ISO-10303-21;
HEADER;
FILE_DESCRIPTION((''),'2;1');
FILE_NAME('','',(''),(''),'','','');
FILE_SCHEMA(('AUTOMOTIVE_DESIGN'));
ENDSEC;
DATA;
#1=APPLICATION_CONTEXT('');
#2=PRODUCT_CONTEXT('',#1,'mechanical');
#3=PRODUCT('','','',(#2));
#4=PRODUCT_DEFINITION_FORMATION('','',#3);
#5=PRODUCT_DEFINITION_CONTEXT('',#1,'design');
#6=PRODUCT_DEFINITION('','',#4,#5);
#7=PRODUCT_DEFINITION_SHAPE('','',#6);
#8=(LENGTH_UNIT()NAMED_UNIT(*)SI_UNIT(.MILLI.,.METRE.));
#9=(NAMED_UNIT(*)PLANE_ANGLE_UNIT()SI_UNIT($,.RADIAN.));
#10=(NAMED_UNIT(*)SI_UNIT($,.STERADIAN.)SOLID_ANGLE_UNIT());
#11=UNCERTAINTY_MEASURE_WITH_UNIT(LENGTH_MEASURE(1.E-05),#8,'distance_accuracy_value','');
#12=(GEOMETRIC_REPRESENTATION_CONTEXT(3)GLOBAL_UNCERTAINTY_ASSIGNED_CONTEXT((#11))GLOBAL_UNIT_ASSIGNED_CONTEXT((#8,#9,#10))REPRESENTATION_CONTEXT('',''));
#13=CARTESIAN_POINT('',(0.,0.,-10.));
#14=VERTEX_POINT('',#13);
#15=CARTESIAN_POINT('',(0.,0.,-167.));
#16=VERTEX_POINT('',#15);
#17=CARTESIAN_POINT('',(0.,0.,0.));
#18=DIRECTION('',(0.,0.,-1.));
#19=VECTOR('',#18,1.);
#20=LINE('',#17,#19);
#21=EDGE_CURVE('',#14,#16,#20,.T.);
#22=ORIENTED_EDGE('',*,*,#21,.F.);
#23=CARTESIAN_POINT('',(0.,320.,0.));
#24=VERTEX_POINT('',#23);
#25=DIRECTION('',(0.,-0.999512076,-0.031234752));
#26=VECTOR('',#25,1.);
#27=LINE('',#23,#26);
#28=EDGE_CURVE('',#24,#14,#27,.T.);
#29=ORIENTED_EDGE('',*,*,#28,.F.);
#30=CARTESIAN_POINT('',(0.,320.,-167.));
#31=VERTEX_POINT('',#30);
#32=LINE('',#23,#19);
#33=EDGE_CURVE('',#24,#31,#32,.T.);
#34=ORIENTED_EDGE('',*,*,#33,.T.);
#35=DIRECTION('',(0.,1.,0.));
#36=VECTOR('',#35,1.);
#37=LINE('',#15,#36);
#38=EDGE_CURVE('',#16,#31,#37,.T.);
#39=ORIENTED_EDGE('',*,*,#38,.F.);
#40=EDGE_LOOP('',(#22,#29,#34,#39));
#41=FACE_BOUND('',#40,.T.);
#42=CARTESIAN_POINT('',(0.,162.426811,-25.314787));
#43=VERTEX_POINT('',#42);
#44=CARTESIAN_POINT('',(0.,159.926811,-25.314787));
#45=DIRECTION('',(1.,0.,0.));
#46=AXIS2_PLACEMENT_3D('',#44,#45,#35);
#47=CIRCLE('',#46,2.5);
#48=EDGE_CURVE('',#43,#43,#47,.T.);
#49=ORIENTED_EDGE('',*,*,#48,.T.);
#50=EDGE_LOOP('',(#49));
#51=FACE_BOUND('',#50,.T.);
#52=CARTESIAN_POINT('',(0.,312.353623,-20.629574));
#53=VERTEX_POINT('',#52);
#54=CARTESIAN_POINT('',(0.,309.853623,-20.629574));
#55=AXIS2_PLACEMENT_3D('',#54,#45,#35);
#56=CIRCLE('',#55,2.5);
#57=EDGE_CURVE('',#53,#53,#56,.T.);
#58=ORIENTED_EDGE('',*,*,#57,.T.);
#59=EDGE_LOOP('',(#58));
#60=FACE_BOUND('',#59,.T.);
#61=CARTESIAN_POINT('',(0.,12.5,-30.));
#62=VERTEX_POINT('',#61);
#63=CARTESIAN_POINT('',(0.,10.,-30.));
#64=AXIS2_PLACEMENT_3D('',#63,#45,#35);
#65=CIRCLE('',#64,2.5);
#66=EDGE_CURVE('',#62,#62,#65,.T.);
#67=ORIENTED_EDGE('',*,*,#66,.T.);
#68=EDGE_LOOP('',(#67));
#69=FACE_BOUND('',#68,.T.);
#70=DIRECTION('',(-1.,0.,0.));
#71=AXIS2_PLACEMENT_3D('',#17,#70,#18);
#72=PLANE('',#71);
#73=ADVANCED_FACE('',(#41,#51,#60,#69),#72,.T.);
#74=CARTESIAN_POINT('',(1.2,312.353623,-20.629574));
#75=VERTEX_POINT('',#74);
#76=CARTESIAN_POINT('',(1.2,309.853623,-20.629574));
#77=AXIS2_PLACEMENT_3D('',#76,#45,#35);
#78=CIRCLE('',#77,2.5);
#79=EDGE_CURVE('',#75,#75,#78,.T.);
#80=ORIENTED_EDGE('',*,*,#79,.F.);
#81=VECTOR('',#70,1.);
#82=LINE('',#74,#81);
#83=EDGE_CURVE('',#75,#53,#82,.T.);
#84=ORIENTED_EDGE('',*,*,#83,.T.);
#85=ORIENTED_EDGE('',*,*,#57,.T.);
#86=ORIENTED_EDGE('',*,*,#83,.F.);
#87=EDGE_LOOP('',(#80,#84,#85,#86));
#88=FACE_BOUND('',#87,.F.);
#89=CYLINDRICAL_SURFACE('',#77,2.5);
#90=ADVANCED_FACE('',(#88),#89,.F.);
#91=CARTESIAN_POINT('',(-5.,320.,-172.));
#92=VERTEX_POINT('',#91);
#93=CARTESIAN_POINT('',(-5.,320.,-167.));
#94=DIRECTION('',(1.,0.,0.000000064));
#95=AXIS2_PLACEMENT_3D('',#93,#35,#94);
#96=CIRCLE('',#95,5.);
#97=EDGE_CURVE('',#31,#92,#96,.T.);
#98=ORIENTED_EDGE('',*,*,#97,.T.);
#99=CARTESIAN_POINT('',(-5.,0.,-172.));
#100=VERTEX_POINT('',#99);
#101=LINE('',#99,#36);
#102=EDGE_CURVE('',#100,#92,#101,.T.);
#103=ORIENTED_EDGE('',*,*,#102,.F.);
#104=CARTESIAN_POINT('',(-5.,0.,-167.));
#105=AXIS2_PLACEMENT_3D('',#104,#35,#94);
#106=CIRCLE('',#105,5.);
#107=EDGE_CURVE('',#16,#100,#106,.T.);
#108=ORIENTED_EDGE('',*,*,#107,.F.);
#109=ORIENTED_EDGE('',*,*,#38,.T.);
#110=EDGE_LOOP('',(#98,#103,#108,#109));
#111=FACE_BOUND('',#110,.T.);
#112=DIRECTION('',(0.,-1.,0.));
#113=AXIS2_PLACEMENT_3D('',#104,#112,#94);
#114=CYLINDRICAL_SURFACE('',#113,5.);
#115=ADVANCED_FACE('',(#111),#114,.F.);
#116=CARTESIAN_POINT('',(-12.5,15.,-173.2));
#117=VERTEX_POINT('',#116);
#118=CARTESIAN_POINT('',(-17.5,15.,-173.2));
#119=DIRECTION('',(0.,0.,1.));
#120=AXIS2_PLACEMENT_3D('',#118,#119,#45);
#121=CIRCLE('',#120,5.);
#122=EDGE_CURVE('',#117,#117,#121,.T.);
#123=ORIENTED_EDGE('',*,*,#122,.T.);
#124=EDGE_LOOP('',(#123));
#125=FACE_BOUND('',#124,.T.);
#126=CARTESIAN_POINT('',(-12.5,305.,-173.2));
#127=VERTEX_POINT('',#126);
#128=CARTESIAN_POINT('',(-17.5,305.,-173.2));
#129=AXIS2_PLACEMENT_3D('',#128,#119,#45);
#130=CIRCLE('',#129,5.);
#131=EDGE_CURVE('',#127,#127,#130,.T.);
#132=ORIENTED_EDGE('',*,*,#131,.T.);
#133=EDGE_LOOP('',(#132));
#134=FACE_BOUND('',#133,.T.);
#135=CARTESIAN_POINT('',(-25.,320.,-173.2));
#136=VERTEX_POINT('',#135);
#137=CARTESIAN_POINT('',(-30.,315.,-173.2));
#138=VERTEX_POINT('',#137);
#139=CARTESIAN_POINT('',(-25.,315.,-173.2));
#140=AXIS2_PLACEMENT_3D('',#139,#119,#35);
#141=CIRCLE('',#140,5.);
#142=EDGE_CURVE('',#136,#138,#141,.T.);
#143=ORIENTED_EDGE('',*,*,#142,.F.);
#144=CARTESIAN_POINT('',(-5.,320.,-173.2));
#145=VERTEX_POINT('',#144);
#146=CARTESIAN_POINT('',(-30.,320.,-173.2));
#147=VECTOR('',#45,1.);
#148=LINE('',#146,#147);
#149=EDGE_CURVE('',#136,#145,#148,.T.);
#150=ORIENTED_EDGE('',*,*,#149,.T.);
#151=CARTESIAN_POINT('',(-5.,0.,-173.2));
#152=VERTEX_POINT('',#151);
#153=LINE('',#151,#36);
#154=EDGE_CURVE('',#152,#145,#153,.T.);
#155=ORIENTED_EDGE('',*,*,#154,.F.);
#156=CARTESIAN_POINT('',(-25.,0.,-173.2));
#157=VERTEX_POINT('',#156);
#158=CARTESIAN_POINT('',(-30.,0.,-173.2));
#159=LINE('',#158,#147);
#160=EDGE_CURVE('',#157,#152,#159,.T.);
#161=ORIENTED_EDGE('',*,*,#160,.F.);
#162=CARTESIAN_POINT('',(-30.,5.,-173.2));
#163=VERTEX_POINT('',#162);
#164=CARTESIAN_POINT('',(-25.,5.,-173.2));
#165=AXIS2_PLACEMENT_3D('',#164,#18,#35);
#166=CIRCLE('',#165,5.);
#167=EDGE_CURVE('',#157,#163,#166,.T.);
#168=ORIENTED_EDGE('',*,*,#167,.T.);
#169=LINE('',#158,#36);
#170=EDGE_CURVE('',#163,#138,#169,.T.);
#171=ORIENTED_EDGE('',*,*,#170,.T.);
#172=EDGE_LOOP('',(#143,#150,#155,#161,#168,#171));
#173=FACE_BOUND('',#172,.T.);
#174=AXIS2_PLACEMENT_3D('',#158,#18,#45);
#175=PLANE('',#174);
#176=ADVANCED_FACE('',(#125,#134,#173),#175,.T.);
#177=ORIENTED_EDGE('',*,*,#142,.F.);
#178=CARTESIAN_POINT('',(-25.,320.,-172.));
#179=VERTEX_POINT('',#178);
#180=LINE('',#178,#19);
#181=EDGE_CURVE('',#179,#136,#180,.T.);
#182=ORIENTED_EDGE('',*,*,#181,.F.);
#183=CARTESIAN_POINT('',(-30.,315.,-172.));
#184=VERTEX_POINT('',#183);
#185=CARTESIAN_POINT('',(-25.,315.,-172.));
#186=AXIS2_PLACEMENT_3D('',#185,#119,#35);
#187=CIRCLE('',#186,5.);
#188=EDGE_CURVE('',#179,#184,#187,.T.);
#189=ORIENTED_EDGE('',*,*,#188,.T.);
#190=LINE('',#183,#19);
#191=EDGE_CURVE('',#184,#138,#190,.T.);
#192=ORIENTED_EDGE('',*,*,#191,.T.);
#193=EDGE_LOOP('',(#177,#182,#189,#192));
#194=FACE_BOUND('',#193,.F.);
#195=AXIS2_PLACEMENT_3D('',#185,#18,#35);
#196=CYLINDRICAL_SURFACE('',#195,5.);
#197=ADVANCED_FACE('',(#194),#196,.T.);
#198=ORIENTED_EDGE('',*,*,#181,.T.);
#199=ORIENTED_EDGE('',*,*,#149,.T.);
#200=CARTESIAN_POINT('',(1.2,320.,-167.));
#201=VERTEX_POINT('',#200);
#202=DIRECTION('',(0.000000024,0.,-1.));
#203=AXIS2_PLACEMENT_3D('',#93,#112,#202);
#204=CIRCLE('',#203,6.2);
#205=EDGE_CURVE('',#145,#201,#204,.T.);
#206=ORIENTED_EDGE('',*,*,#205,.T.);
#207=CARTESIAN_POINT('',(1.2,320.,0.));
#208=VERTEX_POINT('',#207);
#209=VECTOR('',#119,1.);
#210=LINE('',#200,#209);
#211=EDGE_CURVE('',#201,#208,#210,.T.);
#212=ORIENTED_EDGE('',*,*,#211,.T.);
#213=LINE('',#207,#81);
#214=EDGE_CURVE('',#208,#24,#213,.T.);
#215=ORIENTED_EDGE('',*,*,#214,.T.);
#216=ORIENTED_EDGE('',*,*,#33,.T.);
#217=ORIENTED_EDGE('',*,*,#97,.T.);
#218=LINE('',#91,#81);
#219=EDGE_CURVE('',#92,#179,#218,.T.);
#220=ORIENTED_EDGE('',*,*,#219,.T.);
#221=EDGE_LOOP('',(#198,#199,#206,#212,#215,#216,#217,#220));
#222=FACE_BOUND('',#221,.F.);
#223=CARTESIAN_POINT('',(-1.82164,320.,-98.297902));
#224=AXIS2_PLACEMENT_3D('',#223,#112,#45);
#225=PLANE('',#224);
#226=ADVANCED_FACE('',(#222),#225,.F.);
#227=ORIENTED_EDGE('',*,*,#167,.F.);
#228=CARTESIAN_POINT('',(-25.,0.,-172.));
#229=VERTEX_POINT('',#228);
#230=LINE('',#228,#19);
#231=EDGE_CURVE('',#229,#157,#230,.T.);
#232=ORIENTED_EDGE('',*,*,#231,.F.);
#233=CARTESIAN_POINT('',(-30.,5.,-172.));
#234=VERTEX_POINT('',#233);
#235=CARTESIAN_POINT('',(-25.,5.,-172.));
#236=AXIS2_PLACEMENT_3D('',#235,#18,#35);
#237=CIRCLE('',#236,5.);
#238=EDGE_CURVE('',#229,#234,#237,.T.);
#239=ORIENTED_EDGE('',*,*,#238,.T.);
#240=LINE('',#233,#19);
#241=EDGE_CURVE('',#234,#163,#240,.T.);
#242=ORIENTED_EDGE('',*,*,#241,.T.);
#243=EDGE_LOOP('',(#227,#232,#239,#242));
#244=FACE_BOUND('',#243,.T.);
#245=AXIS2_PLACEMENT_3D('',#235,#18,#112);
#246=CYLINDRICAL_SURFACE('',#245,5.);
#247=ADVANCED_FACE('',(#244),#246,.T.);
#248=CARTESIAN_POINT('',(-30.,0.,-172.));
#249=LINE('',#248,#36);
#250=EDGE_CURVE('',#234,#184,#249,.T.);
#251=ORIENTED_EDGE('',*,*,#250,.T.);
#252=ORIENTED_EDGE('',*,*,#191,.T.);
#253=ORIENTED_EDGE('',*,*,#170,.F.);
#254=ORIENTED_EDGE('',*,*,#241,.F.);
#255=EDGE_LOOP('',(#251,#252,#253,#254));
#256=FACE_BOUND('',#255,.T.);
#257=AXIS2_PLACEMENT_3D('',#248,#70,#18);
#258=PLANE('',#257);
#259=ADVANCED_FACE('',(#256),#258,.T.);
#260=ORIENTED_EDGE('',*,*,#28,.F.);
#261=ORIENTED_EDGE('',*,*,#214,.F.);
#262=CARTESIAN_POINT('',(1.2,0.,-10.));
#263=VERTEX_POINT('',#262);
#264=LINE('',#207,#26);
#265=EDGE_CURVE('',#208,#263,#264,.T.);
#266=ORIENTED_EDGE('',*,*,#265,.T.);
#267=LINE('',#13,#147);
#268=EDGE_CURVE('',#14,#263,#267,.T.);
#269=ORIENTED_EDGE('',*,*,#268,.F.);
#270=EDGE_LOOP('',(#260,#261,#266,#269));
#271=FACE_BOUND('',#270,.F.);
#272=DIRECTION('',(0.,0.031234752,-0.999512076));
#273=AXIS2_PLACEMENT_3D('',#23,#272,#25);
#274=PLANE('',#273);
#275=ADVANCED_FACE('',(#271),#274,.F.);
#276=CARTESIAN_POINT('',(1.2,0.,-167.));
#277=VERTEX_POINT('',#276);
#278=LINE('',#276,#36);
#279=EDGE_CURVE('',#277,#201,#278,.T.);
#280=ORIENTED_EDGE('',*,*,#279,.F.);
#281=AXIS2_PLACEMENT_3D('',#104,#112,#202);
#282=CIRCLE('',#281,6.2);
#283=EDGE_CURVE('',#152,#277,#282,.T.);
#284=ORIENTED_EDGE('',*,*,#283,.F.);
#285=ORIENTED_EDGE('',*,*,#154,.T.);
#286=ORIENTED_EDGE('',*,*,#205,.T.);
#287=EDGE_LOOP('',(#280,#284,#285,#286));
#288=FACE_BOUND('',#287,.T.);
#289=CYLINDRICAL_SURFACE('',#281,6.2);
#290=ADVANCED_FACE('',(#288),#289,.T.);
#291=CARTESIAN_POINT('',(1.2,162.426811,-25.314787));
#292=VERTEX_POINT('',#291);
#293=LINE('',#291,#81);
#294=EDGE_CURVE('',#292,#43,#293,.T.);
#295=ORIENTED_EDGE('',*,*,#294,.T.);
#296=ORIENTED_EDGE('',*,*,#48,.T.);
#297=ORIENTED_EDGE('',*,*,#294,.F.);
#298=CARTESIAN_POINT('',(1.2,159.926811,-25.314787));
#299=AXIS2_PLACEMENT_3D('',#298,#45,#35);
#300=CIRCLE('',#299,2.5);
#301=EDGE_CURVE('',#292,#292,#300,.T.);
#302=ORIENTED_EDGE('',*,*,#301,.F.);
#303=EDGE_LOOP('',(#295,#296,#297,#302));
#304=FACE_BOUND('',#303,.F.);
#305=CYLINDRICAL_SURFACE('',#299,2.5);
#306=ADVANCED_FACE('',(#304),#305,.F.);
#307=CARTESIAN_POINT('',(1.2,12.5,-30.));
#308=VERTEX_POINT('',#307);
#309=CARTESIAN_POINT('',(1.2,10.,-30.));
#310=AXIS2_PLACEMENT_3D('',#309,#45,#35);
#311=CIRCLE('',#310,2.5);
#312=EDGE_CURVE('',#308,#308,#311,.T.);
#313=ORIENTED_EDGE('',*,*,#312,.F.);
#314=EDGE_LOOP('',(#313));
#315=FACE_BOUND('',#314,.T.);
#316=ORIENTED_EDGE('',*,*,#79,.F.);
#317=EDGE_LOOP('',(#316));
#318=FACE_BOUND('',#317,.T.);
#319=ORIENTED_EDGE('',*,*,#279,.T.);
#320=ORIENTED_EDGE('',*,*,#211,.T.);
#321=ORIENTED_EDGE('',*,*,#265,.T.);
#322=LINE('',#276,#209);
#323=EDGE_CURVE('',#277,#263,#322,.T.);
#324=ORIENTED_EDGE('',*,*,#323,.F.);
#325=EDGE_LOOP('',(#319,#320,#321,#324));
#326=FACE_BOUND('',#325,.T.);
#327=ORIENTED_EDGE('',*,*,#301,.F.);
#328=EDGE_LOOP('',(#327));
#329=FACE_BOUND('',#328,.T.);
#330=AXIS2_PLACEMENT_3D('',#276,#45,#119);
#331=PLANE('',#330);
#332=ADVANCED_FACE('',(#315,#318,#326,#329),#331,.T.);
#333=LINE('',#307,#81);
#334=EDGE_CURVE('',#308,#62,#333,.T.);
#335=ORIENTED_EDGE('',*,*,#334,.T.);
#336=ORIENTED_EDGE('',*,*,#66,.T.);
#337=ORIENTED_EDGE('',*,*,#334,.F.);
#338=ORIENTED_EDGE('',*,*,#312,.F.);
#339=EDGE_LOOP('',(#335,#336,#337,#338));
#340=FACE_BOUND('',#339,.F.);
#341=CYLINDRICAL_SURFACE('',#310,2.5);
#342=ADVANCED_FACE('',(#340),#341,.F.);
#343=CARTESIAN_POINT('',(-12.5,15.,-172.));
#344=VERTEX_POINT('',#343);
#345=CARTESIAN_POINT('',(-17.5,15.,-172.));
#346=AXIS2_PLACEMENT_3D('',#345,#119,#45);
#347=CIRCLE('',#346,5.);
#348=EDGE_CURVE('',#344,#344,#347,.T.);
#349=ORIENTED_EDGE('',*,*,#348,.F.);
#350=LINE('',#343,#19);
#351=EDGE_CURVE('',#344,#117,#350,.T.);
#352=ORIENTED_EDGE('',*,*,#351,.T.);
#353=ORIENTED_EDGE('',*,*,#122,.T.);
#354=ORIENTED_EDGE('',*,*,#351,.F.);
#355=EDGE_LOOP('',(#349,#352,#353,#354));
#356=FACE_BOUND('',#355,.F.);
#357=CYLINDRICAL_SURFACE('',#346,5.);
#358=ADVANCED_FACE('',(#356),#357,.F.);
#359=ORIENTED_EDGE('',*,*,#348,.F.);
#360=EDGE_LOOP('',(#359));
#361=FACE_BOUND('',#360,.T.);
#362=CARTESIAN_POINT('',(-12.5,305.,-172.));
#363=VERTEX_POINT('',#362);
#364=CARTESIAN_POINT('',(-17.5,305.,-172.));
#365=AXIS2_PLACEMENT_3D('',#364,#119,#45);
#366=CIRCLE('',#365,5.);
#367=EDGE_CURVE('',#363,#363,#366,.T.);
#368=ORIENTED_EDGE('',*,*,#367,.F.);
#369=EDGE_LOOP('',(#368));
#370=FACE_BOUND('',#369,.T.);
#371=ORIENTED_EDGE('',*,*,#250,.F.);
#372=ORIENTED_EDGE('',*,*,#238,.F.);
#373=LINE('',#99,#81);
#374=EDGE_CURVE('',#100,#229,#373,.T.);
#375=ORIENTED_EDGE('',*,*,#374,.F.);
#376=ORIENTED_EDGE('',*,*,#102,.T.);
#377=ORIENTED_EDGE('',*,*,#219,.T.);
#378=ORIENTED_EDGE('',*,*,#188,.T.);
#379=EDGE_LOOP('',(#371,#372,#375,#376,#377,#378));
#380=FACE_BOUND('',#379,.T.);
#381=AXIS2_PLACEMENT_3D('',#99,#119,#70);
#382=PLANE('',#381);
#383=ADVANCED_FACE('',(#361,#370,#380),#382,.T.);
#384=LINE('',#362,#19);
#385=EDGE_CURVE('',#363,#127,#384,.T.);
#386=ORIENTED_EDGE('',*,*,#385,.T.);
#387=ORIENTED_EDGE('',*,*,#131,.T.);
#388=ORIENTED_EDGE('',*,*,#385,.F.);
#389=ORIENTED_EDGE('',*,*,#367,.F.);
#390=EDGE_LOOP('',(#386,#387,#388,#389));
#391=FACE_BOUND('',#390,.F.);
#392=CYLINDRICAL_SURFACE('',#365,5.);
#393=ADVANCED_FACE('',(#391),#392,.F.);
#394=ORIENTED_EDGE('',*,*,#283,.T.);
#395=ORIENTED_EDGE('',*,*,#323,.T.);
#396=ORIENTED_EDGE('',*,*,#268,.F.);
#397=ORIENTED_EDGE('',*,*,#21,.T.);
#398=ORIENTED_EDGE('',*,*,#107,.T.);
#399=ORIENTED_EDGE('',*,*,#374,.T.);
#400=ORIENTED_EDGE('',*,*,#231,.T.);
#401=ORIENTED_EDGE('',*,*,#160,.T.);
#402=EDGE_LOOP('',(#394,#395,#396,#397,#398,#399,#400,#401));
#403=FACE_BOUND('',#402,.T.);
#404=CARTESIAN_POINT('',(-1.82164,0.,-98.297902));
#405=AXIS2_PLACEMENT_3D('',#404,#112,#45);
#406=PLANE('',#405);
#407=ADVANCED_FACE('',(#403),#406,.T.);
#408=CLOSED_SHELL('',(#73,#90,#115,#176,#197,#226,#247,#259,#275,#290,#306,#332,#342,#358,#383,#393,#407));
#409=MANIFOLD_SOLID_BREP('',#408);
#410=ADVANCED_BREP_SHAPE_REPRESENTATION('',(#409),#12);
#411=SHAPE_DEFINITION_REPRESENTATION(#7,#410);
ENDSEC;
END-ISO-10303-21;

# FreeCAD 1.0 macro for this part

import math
import FreeCAD as App
import Part
import Sketcher


def edges_at(feature, points):
    """Names of the edges that pass closest to the given points."""
    edges = feature.Shape.Edges
    near = lambda p: min(range(len(edges)), key=lambda i: edges[i].distToShape(Part.Vertex(*p))[0])
    return sorted({f"Edge{near(p) + 1}" for p in points})


def add_polygon(sketch, points):
    """Adds a closed chain of lines whose ends are joined by coincident constraints."""
    first, n = sketch.GeometryCount, len(points)
    for a, b in zip(points, points[1:] + points[:1]):
        sketch.addGeometry(Part.LineSegment(App.Vector(*a, 0), App.Vector(*b, 0)), False)
    for i in range(n):
        sketch.addConstraint(Sketcher.Constraint("Coincident", first + i, 2, first + (i + 1) % n, 1))

doc = App.newDocument("Part")
body = doc.addObject("PartDesign::Body", "Body")

# Sketch on XZ plane
sketch1 = body.newObject("Sketcher::SketchObject", "Sketch")
sketch1.AttachmentSupport = (doc.getObject("XZ_Plane"), [""])
sketch1.MapMode = "FlatFace"
sketch1.addGeometry(Part.LineSegment(App.Vector(1.2, 0, 0), App.Vector(0, 0, 0)), False)
sketch1.addGeometry(Part.LineSegment(App.Vector(0, 0, 0), App.Vector(0, -167, 0)), False)
sketch1.addGeometry(Part.ArcOfCircle(Part.Circle(App.Vector(-5, -167, 0), App.Vector(0, 0, 1), 5), math.radians(-90.000004), math.radians(0.000004)), False)
sketch1.addGeometry(Part.LineSegment(App.Vector(-5, -172, 0), App.Vector(-30, -172, 0)), False)
sketch1.addGeometry(Part.LineSegment(App.Vector(-30, -172, 0), App.Vector(-30, -173.2, 0)), False)
sketch1.addGeometry(Part.LineSegment(App.Vector(-30, -173.2, 0), App.Vector(-5, -173.2, 0)), False)
sketch1.addGeometry(Part.ArcOfCircle(Part.Circle(App.Vector(-5, -167, 0), App.Vector(0, 0, 1), 6.2), math.radians(-89.999999), math.radians(-0.000001)), False)
sketch1.addGeometry(Part.LineSegment(App.Vector(1.2, -167, 0), App.Vector(1.2, 0, 0)), False)
sketch1.addConstraint(Sketcher.Constraint("Coincident", 0, 2, 1, 1))
sketch1.addConstraint(Sketcher.Constraint("Tangent", 1, 2, 2, 2))
sketch1.addConstraint(Sketcher.Constraint("Tangent", 2, 1, 3, 1))
sketch1.addConstraint(Sketcher.Constraint("Coincident", 3, 2, 4, 1))
sketch1.addConstraint(Sketcher.Constraint("Coincident", 4, 2, 5, 1))
sketch1.addConstraint(Sketcher.Constraint("Tangent", 5, 2, 6, 1))
sketch1.addConstraint(Sketcher.Constraint("Tangent", 6, 2, 7, 1))
sketch1.addConstraint(Sketcher.Constraint("Coincident", 7, 2, 0, 1))
sketch1.addConstraint(Sketcher.Constraint("Horizontal", 0))
sketch1.addConstraint(Sketcher.Constraint("Vertical", 1))
sketch1.addConstraint(Sketcher.Constraint("Horizontal", 3))
sketch1.addConstraint(Sketcher.Constraint("Vertical", 4))
sketch1.addConstraint(Sketcher.Constraint("Horizontal", 5))
sketch1.addConstraint(Sketcher.Constraint("Vertical", 7))
sketch1.addConstraint(Sketcher.Constraint("Coincident", 0, 2, -1, 1))
sketch1.addConstraint(Sketcher.Constraint("Coincident", 6, 3, 2, 3))
sketch1.addConstraint(Sketcher.Constraint("Radius", 2, 5.0))
sketch1.addConstraint(Sketcher.Constraint("Radius", 6, 6.2))
sketch1.addConstraint(Sketcher.Constraint("DistanceX", 3, 2, 3, 1, 25.0))
sketch1.addConstraint(Sketcher.Constraint("DistanceY", 1, 2, 1, 1, 167.0))
pad1 = body.newObject("PartDesign::Pad", "Pad")
pad1.Profile = sketch1
pad1.Length = 320
pad1.Reversed = True

# Sketch on XY plane
sketch2 = body.newObject("Sketcher::SketchObject", "Sketch001")
sketch2.AttachmentSupport = (doc.getObject("XY_Plane"), [""])
sketch2.MapMode = "FlatFace"
sketch2.AttachmentOffset = App.Placement(App.Vector(0, 0, -172), App.Rotation())
sketch2.addGeometry(Part.Circle(App.Vector(-17.5, 305, 0), App.Vector(0, 0, 1), 5), False)
sketch2.addGeometry(Part.Circle(App.Vector(-17.5, 15, 0), App.Vector(0, 0, 1), 5), False)
sketch2.addConstraint(Sketcher.Constraint("Equal", 0, 1))
sketch2.addConstraint(Sketcher.Constraint("Vertical", 0, 3, 1, 3))
sketch2.addConstraint(Sketcher.Constraint("Diameter", 0, 10.0))
sketch2.addConstraint(Sketcher.Constraint("DistanceY", -1, 1, 0, 3, 305.0))
sketch2.addConstraint(Sketcher.Constraint("DistanceY", -1, 1, 1, 3, 15.0))
sketch2.addConstraint(Sketcher.Constraint("DistanceX", 0, 3, -1, 1, 17.5))
pocket1 = body.newObject("PartDesign::Pocket", "Pocket")
pocket1.Profile = sketch2
pocket1.Type = "ThroughAll"
doc.recompute()

fillet = body.newObject("PartDesign::Fillet", "Fillet")
fillet.Base = (pocket1, edges_at(pocket1, [(-30, 320, -172.6), (-30, 0, -172.6)]))
fillet.Radius = 5

# Sketch on YZ plane
sketch3 = body.newObject("Sketcher::SketchObject", "Sketch002")
sketch3.AttachmentSupport = (doc.getObject("YZ_Plane"), [""])
sketch3.MapMode = "FlatFace"
add_polygon(sketch3, [(0, 0), (320, 0), (0, -10)])  # lines 0-2
sketch3.addConstraint(Sketcher.Constraint("Horizontal", 0))
sketch3.addConstraint(Sketcher.Constraint("Vertical", 2))
sketch3.addConstraint(Sketcher.Constraint("Coincident", 2, 2, -1, 1))
sketch3.addConstraint(Sketcher.Constraint("DistanceX", 0, 1, 0, 2, 320.0))
sketch3.addConstraint(Sketcher.Constraint("DistanceY", 2, 1, 2, 2, 10.0))
pocket2 = body.newObject("PartDesign::Pocket", "Pocket001")
pocket2.Profile = sketch3
pocket2.Type = "ThroughAll"
pocket2.Reversed = True

# Sketch on YZ plane
sketch4 = body.newObject("Sketcher::SketchObject", "Sketch003")
sketch4.AttachmentSupport = (doc.getObject("YZ_Plane"), [""])
sketch4.MapMode = "FlatFace"
sketch4.AttachmentOffset = App.Placement(App.Vector(0, 0, 1.2), App.Rotation())
sketch4.addGeometry(Part.Circle(App.Vector(10, -30, 0), App.Vector(0, 0, 1), 2.5), False)
sketch4.addGeometry(Part.Circle(App.Vector(159.926811, -25.314787, 0), App.Vector(0, 0, 1), 2.5), False)
sketch4.addGeometry(Part.Circle(App.Vector(309.853623, -20.629574, 0), App.Vector(0, 0, 1), 2.5), False)
sketch4.addConstraint(Sketcher.Constraint("Equal", 0, 1))
sketch4.addConstraint(Sketcher.Constraint("Equal", 1, 2))
sketch4.addConstraint(Sketcher.Constraint("Diameter", 0, 5.0))
sketch4.addConstraint(Sketcher.Constraint("DistanceX", -1, 1, 0, 3, 10.0))
sketch4.addConstraint(Sketcher.Constraint("DistanceY", 0, 3, -1, 1, 30.0))
sketch4.addConstraint(Sketcher.Constraint("DistanceX", -1, 1, 1, 3, 159.926811))
sketch4.addConstraint(Sketcher.Constraint("DistanceY", 1, 3, -1, 1, 25.314787))
sketch4.addConstraint(Sketcher.Constraint("DistanceX", -1, 1, 2, 3, 309.853623))
sketch4.addConstraint(Sketcher.Constraint("DistanceY", 2, 3, -1, 1, 20.629574))
pocket3 = body.newObject("PartDesign::Pocket", "Pocket002")
pocket3.Profile = sketch4
pocket3.Length = 2

doc.recompute()
